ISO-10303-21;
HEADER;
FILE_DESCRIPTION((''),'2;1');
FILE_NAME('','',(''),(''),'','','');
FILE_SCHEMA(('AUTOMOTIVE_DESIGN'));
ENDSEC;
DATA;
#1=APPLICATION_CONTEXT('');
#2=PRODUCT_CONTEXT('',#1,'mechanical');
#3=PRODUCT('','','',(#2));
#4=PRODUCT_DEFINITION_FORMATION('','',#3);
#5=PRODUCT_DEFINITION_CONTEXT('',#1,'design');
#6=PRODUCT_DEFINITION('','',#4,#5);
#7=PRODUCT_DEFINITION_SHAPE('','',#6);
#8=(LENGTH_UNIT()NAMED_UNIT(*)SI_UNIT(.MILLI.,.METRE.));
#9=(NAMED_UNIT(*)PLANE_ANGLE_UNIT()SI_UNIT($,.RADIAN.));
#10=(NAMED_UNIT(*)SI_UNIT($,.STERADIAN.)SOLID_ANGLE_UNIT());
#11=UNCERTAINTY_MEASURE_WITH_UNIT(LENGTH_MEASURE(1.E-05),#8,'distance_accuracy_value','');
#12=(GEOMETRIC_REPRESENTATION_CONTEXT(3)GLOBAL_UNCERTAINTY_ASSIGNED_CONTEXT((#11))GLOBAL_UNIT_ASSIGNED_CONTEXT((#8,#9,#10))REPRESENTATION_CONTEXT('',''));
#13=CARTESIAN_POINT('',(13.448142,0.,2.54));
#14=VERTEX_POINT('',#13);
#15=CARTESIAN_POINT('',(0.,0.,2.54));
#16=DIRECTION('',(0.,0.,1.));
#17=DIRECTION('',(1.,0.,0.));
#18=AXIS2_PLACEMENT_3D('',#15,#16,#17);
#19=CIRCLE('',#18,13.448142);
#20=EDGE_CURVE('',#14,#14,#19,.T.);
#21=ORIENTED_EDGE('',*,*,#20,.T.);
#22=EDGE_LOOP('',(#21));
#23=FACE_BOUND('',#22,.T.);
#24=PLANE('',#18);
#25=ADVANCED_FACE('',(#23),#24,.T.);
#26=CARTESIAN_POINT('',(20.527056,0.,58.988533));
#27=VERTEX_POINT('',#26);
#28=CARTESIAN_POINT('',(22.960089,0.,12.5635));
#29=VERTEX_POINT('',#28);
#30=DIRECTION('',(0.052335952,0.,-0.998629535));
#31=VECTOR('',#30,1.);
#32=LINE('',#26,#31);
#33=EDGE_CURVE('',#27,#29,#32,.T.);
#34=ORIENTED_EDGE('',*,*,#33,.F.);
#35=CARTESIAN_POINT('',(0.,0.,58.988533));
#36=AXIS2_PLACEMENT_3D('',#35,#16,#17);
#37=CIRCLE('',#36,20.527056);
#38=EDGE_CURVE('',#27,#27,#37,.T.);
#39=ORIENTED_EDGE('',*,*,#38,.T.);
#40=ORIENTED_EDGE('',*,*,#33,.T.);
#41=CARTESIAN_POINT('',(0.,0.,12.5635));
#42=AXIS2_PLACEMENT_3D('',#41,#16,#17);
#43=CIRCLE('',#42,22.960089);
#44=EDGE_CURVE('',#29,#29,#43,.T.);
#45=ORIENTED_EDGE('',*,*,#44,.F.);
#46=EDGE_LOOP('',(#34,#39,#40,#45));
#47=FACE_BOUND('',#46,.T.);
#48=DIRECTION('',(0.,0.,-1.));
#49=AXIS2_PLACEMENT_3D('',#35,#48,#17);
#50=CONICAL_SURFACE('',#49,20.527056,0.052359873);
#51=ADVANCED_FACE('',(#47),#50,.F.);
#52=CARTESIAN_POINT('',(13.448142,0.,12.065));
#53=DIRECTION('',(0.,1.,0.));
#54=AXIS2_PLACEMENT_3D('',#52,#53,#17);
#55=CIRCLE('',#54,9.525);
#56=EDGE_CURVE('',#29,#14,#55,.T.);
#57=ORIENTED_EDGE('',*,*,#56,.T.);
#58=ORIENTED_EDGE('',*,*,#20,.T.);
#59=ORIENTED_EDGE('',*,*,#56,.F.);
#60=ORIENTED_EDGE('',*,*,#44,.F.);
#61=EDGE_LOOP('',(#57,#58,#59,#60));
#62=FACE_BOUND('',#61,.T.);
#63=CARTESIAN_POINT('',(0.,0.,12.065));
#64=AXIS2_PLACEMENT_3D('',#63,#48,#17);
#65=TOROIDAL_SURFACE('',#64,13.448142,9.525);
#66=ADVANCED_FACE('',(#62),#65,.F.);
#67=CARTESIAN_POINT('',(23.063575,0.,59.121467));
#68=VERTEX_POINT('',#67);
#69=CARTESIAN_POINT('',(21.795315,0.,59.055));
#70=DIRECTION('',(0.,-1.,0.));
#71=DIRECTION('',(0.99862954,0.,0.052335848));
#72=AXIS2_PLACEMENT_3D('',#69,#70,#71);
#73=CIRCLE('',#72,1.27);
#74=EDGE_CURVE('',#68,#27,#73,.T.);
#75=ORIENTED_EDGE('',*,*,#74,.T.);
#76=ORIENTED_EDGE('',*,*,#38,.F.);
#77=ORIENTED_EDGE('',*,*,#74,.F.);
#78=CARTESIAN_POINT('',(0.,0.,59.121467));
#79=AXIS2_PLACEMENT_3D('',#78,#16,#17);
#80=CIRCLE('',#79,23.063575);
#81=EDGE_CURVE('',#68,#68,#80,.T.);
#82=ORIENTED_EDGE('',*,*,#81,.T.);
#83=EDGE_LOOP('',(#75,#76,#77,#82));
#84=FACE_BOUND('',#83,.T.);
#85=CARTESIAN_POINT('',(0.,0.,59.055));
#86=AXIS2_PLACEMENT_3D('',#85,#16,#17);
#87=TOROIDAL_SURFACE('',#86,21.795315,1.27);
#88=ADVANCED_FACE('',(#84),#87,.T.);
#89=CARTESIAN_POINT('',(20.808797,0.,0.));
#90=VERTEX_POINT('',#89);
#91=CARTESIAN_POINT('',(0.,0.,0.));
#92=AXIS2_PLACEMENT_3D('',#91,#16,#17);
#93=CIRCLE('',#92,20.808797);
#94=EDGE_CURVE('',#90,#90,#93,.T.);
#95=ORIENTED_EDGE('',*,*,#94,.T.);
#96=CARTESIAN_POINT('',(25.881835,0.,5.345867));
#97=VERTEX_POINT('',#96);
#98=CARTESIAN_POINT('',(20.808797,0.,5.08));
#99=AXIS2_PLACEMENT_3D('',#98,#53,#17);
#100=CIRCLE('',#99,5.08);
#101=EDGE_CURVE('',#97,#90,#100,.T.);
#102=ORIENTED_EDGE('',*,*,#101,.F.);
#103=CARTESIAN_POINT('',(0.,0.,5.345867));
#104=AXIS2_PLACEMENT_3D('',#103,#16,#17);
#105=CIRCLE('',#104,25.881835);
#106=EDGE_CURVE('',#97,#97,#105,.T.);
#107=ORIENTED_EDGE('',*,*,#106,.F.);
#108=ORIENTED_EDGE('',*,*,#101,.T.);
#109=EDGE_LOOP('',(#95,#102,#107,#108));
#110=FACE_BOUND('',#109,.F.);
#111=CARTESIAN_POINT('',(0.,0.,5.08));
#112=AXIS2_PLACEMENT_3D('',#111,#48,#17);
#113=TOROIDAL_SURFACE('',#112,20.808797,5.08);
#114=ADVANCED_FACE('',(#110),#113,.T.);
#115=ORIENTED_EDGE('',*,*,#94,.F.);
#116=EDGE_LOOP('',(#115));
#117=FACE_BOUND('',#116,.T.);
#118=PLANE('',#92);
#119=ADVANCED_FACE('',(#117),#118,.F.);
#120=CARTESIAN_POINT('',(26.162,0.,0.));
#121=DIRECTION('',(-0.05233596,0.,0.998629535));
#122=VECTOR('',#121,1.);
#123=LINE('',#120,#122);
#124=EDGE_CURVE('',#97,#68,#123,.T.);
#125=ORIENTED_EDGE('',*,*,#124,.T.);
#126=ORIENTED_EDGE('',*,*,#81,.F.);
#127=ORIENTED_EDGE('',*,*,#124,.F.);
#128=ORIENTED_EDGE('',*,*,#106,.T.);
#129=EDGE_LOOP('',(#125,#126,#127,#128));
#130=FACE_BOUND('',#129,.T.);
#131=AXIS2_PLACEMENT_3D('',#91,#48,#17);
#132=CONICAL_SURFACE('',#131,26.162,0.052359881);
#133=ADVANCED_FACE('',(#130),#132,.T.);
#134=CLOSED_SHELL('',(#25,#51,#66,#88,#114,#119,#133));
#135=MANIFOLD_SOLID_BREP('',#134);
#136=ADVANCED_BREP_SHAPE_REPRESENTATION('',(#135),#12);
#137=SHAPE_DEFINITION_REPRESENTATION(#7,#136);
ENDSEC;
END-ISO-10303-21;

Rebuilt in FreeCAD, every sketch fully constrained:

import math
import FreeCAD as App
import Part
import Sketcher
Q = App.Units.Quantity


def edges_at(feature, points):
    """Names of the edges that pass closest to the given points."""
    edges = feature.Shape.Edges
    near = lambda p: min(range(len(edges)), key=lambda i: edges[i].distToShape(Part.Vertex(*p))[0])
    return sorted({f"Edge{near(p) + 1}" for p in points})

doc = App.newDocument("Part")
params = doc.addObject("Spreadsheet::Sheet", "Params")
for row, (alias, value) in enumerate([
    ("sketch1_radius", "0.05 in"),
    ("sketch1_height", "0.1 in"),
    ("sketch1_width", "1.03 in"),
    ("revolution_angle", "360 deg"),
    ("fillet_radius", "0.375 in"),
    ("fillet2_radius", "0.2 in"),
], start=1):
    params.set(f"A{row}", alias)
    params.set(f"B{row}", "=" + value)
    params.setAlias(f"B{row}", alias)

body = doc.addObject("PartDesign::Body", "Body")

# Sketch on XZ plane
sketch1 = doc.addObject("Sketcher::SketchObject", "Sketch")
body.addObject(sketch1)
sketch1.AttachmentSupport = (doc.XZ_Plane, [""])
sketch1.MapMode = "FlatFace"
sketch1.addGeometry(Part.LineSegment(App.Vector(0, 2.54, 0), App.Vector(0, 0, 0)), False)
sketch1.addGeometry(Part.LineSegment(App.Vector(0, 0, 0), App.Vector(26.162, 0, 0)), False)
sketch1.addGeometry(Part.LineSegment(App.Vector(26.162, 0, 0), App.Vector(23.063575, 59.121467, 0)), False)
sketch1.addGeometry(Part.ArcOfCircle(Part.Circle(App.Vector(21.795315, 59.055, 0), App.Vector(0, 0, 1), 1.27), math.radians(2.999994), math.radians(183.000036)), False)
sketch1.addGeometry(Part.LineSegment(App.Vector(20.527056, 58.988533, 0), App.Vector(23.485398, 2.54, 0)), False)
sketch1.addGeometry(Part.LineSegment(App.Vector(23.485398, 2.54, 0), App.Vector(0, 2.54, 0)), False)
sketch1.addConstraint(Sketcher.Constraint("Coincident", 0, 2, 1, 1))
sketch1.addConstraint(Sketcher.Constraint("Coincident", 1, 2, 2, 1))
sketch1.addConstraint(Sketcher.Constraint("Tangent", 2, 2, 3, 1))
sketch1.addConstraint(Sketcher.Constraint("Tangent", 3, 2, 4, 1))
sketch1.addConstraint(Sketcher.Constraint("Coincident", 4, 2, 5, 1))
sketch1.addConstraint(Sketcher.Constraint("Coincident", 5, 2, 0, 1))
sketch1.addConstraint(Sketcher.Constraint("Vertical", 0))
sketch1.addConstraint(Sketcher.Constraint("Horizontal", 1))
sketch1.addConstraint(Sketcher.Constraint("Horizontal", 5))
sketch1.addConstraint(Sketcher.Constraint("Coincident", 0, 2, -1, 1))
sketch1.addConstraint(Sketcher.Constraint("Parallel", 2, 4))
sketch1.addConstraint(Sketcher.Constraint("Radius", 3, Q("0.05 in")))
sketch1.addConstraint(Sketcher.Constraint("DistanceY", 0, 2, 0, 1, Q("0.1 in")))
sketch1.addConstraint(Sketcher.Constraint("Angle", 2, Q("93 deg")))
sketch1.addConstraint(Sketcher.Constraint("DistanceX", 1, 1, 1, 2, Q("1.03 in")))
sketch1.addConstraint(Sketcher.Constraint("DistanceY", -1, 1, 3, 3, Q("2.325 in")))
sketch1.setExpression("Constraints[11]", "Params.sketch1_radius")
sketch1.setExpression("Constraints[12]", "Params.sketch1_height")
sketch1.setExpression("Constraints[14]", "Params.sketch1_width")
revolution = doc.addObject("PartDesign::Revolution", "Revolution")
body.addObject(revolution)
revolution.Profile = sketch1
revolution.ReferenceAxis = (sketch1, ["V_Axis"])
revolution.setExpression("Angle", "Params.revolution_angle")
doc.recompute()

fillet = doc.addObject("PartDesign::Fillet", "Fillet")
body.addObject(fillet)
fillet.Base = (revolution, edges_at(revolution, [(-23.485, 0, 2.54)]))
fillet.setExpression("Radius", "Params.fillet_radius")
doc.recompute()

fillet2 = doc.addObject("PartDesign::Fillet", "Fillet001")
body.addObject(fillet2)
fillet2.Base = (fillet, edges_at(fillet, [(-26.162, 0, 0)]))
fillet2.setExpression("Radius", "Params.fillet2_radius")

doc.recompute()
